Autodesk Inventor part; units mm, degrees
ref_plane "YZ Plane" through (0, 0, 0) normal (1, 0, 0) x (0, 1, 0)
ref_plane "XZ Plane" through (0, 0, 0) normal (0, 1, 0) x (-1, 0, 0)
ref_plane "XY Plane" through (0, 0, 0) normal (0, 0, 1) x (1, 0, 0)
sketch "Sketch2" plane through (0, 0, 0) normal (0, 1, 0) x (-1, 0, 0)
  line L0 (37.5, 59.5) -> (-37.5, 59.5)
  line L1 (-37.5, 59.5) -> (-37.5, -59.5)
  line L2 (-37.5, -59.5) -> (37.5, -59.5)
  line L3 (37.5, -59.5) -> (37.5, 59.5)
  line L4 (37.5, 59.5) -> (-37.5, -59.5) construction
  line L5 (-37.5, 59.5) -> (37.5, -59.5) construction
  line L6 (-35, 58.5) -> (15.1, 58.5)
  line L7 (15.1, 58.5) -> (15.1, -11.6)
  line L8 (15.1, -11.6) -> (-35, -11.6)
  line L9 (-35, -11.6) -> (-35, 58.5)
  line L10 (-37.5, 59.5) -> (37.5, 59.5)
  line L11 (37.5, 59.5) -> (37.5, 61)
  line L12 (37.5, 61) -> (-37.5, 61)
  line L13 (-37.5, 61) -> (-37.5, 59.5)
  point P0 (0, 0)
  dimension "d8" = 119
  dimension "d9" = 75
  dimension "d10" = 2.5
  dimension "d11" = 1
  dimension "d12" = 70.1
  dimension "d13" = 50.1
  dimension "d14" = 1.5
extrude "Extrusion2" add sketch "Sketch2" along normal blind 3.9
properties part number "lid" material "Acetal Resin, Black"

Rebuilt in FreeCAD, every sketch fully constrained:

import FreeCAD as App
import Part
import Sketcher
from FreeCAD import Vector
Q = App.Units.Quantity

doc = App.newDocument("Part")
params = doc.addObject("Spreadsheet::Sheet", "Params")
for row, (alias, value) in enumerate([
    ("sketch1_width", "75 mm"),
    ("sketch1_width2", "50.1 mm"),
    ("sketch1_height", "70.1 mm"),
    ("sketch1_height2", "120.5 mm"),
    ("pad1_length", "3.9 mm"),
], start=1):
    params.set(f"A{row}", alias)
    params.set(f"B{row}", "=" + value)
    params.setAlias(f"B{row}", alias)

body = doc.addObject("PartDesign::Body", "Body")

# Sketch on XZ plane
sketch1 = body.newObject("Sketcher::SketchObject", "Sketch")
sketch1.AttachmentSupport = (doc.getObject("XZ_Plane"), [""])
sketch1.MapMode = "FlatFace"
sketch1.addGeometry(Part.LineSegment(Vector(-38, -60, 0), Vector(-38, 61, 0)), False)
sketch1.addGeometry(Part.LineSegment(Vector(-38, 61, 0), Vector(38, 61, 0)), False)
sketch1.addGeometry(Part.LineSegment(Vector(38, 61, 0), Vector(38, -60, 0)), False)
sketch1.addGeometry(Part.LineSegment(Vector(38, -60, 0), Vector(-38, -60, 0)), False)
sketch1.addGeometry(Part.LineSegment(Vector(35, -12, 0), Vector(35, 58, 0)), False)
sketch1.addGeometry(Part.LineSegment(Vector(35, 58, 0), Vector(-15, 58, 0)), False)
sketch1.addGeometry(Part.LineSegment(Vector(-15, 58, 0), Vector(-15, -12, 0)), False)
sketch1.addGeometry(Part.LineSegment(Vector(-15, -12, 0), Vector(35, -12, 0)), False)
sketch1.addConstraint(Sketcher.Constraint("Coincident", 0, 2, 1, 1))
sketch1.addConstraint(Sketcher.Constraint("Coincident", 1, 2, 2, 1))
sketch1.addConstraint(Sketcher.Constraint("Coincident", 2, 2, 3, 1))
sketch1.addConstraint(Sketcher.Constraint("Coincident", 3, 2, 0, 1))
sketch1.addConstraint(Sketcher.Constraint("Coincident", 4, 2, 5, 1))
sketch1.addConstraint(Sketcher.Constraint("Coincident", 5, 2, 6, 1))
sketch1.addConstraint(Sketcher.Constraint("Coincident", 6, 2, 7, 1))
sketch1.addConstraint(Sketcher.Constraint("Coincident", 7, 2, 4, 1))
sketch1.addConstraint(Sketcher.Constraint("Vertical", 0))
sketch1.addConstraint(Sketcher.Constraint("Horizontal", 1))
sketch1.addConstraint(Sketcher.Constraint("Vertical", 2))
sketch1.addConstraint(Sketcher.Constraint("Horizontal", 3))
sketch1.addConstraint(Sketcher.Constraint("Vertical", 4))
sketch1.addConstraint(Sketcher.Constraint("Horizontal", 5))
sketch1.addConstraint(Sketcher.Constraint("Vertical", 6))
sketch1.addConstraint(Sketcher.Constraint("Horizontal", 7))
sketch1.addConstraint(Sketcher.Constraint("DistanceX", 1, 1, 1, 2, Q("75 mm")))
sketch1.addConstraint(Sketcher.Constraint("DistanceX", 5, 2, 5, 1, Q("50.1 mm")))
sketch1.addConstraint(Sketcher.Constraint("DistanceY", 4, 1, 4, 2, Q("70.1 mm")))
sketch1.addConstraint(Sketcher.Constraint("DistanceX", 4, 2, 1, 2, Q("2.5 mm")))
sketch1.addConstraint(Sketcher.Constraint("DistanceY", 4, 2, 1, 2, Q("2.5 mm")))
sketch1.addConstraint(Sketcher.Constraint("DistanceY", 0, 1, 0, 2, Q("120.5 mm")))
sketch1.addConstraint(Sketcher.Constraint("DistanceY", -1, 1, 0, 2, Q("61 mm")))
sketch1.addConstraint(Sketcher.Constraint("DistanceX", -1, 1, 4, 2, Q("35 mm")))
sketch1.setExpression("Constraints[16]", "Params.sketch1_width")
sketch1.setExpression("Constraints[17]", "Params.sketch1_width2")
sketch1.setExpression("Constraints[18]", "Params.sketch1_height")
sketch1.setExpression("Constraints[21]", "Params.sketch1_height2")
pad1 = body.newObject("PartDesign::Pad", "Pad")
pad1.Profile = sketch1
pad1.setExpression("Length", "Params.pad1_length")
pad1.Reversed = True

doc.recompute()
